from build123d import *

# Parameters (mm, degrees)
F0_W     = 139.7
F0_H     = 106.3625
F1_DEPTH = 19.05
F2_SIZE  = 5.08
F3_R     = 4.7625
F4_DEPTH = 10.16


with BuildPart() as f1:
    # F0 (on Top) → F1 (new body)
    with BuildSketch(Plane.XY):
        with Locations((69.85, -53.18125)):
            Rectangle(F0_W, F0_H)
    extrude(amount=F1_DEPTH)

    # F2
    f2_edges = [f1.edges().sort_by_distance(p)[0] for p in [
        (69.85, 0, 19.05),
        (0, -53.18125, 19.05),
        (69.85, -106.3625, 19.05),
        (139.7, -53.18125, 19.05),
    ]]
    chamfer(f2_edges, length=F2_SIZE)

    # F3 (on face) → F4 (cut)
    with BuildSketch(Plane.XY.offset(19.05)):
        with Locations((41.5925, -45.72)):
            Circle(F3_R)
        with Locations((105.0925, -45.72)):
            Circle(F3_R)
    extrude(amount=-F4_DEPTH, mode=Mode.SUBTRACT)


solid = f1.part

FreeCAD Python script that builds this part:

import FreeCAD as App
import Part
import Sketcher
Q = App.Units.Quantity


def edges_at(feature, points):
    """Names of the edges that pass closest to the given points."""
    edges = feature.Shape.Edges
    near = lambda p: min(range(len(edges)), key=lambda i: edges[i].distToShape(Part.Vertex(*p))[0])
    return sorted({f"Edge{near(p) + 1}" for p in points})


def add_polygon(sketch, points):
    """Adds a closed chain of lines whose ends are joined by coincident constraints."""
    first, n = sketch.GeometryCount, len(points)
    for a, b in zip(points, points[1:] + points[:1]):
        sketch.addGeometry(Part.LineSegment(App.Vector(*a, 0), App.Vector(*b, 0)), False)
    for i in range(n):
        sketch.addConstraint(Sketcher.Constraint("Coincident", first + i, 2, first + (i + 1) % n, 1))

doc = App.newDocument("Part")
body = doc.addObject("PartDesign::Body", "Body")

# Sketch on XY plane
sketch1 = doc.addObject("Sketcher::SketchObject", "Sketch")
body.addObject(sketch1)
sketch1.AttachmentSupport = (doc.XY_Plane, [""])
sketch1.MapMode = "FlatFace"
add_polygon(sketch1, [(0, 0), (0, -106), (140, -106), (140, 0)])  # lines 0-3
sketch1.addConstraint([
    Sketcher.Constraint("Vertical", 0),
    Sketcher.Constraint("Horizontal", 1),
    Sketcher.Constraint("Vertical", 2),
    Sketcher.Constraint("Horizontal", 3),
    Sketcher.Constraint("Coincident", 3, 2, -1, 1),
    Sketcher.Constraint("DistanceX", 1, 1, 1, 2, Q("5.5 in")),
    Sketcher.Constraint("DistanceY", 0, 2, 0, 1, Q("4.1875 in")),
])
pad1 = doc.addObject("PartDesign::Pad", "Pad")
body.addObject(pad1)
pad1.Profile = sketch1
pad1.Length = Q("0.75 in")
doc.recompute()

chamfer = doc.addObject("PartDesign::Chamfer", "Chamfer")
body.addObject(chamfer)
chamfer.Base = (pad1, edges_at(pad1, [
    (69.85, 0, 19.05),
    (0, -53.181, 19.05),
    (69.85, -106.362, 19.05),
    (139.7, -53.181, 19.05),
]))
chamfer.Size = Q("0.2 in")

# Sketch on XY plane
sketch2 = doc.addObject("Sketcher::SketchObject", "Sketch001")
body.addObject(sketch2)
sketch2.AttachmentSupport = (doc.XY_Plane, [""])
sketch2.MapMode = "FlatFace"
sketch2.AttachmentOffset = App.Placement(App.Vector(0, 0, 0.75 * 25.4), App.Rotation())
sketch2.addGeometry([
    Part.Circle(App.Vector(41.6, -45.7, 0), App.Vector(0, 0, 1), 4.8),
    Part.Circle(App.Vector(105.1, -45.7, 0), App.Vector(0, 0, 1), 4.8),
], False)
sketch2.addConstraint([
    Sketcher.Constraint("Equal", 0, 1),
    Sketcher.Constraint("Horizontal", 0, 3, 1, 3),
    Sketcher.Constraint("Diameter", 0, Q("0.375 in")),
    Sketcher.Constraint("DistanceY", 0, 3, -1, 1, Q("1.8 in")),
    Sketcher.Constraint("DistanceX", 0, 3, 1, 3, Q("2.5 in")),
    Sketcher.Constraint("DistanceX", -1, 1, 0, 3, Q("1.6375 in")),
])
pocket1 = doc.addObject("PartDesign::Pocket", "Pocket")
body.addObject(pocket1)
pocket1.Profile = sketch2
pocket1.Length = Q("0.4 in")

doc.recompute()
